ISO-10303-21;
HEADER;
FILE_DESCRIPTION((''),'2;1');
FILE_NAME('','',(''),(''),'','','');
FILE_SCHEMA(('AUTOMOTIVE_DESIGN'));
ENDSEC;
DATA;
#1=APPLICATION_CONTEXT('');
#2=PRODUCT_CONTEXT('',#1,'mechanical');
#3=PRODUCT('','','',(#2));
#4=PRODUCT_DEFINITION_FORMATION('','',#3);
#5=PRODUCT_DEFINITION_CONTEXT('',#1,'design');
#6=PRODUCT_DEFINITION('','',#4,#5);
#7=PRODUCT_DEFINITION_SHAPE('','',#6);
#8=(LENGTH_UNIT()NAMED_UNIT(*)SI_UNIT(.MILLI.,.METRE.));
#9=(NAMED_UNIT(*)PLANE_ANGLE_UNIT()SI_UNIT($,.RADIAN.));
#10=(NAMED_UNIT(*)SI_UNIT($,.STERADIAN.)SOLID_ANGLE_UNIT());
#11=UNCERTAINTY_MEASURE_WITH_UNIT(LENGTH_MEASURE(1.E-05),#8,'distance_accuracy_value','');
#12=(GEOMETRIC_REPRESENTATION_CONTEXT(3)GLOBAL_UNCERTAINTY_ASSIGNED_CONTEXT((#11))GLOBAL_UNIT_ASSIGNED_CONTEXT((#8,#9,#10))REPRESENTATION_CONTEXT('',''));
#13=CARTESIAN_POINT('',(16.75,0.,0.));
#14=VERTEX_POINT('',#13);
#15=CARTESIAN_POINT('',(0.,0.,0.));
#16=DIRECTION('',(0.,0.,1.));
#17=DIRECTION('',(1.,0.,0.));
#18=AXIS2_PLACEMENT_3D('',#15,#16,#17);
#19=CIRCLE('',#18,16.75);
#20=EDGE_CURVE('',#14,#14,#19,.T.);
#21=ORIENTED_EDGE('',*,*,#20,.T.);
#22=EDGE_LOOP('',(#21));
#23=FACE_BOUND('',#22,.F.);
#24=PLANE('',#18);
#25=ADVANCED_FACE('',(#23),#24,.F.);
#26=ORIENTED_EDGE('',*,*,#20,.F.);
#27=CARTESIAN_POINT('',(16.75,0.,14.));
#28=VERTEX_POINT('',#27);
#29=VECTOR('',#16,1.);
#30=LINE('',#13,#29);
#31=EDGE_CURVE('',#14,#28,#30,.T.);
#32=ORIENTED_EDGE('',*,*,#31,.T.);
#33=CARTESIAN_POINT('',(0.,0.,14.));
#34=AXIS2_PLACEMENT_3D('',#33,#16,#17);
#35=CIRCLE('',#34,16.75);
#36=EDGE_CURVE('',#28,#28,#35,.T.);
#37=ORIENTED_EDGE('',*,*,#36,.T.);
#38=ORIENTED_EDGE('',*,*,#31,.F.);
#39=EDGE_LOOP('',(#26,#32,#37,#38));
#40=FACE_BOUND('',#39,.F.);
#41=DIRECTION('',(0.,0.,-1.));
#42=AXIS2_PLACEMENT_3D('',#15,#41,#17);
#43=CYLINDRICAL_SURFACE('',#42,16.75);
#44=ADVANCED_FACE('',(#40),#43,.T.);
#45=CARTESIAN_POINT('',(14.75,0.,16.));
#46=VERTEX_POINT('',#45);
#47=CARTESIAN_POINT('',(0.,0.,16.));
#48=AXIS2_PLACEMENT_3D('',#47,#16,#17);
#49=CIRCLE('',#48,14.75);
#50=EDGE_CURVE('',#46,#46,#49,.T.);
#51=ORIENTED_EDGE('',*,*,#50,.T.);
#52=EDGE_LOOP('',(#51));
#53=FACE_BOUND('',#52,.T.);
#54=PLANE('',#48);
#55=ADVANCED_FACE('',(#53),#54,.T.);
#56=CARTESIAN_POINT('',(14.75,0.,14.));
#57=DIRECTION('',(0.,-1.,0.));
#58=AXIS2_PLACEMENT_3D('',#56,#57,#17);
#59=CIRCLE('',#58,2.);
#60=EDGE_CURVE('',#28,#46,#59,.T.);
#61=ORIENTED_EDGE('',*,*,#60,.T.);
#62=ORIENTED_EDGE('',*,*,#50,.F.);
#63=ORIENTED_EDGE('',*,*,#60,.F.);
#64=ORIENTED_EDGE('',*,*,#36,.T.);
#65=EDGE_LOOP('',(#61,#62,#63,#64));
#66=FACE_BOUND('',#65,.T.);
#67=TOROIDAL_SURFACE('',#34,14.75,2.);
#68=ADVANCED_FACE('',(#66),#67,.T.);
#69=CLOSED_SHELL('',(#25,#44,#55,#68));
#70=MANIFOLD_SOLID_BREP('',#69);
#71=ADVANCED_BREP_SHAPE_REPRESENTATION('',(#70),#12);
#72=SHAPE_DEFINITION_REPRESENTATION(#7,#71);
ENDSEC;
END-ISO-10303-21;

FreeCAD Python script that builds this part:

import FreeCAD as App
import Part
import Sketcher


def edges_at(feature, points):
    """Names of the edges that pass closest to the given points."""
    edges = feature.Shape.Edges
    near = lambda p: min(range(len(edges)), key=lambda i: edges[i].distToShape(Part.Vertex(*p))[0])
    return sorted({f"Edge{near(p) + 1}" for p in points})

doc = App.newDocument("Part")
body = doc.addObject("PartDesign::Body", "Body")

# Sketch on XY plane
sketch1 = body.newObject("Sketcher::SketchObject", "Sketch")
sketch1.AttachmentSupport = (doc.getObject("XY_Plane"), [""])
sketch1.MapMode = "FlatFace"
sketch1.addGeometry(Part.Circle(App.Vector(0, 0, 0), App.Vector(0, 0, 1), 17), False)
sketch1.addConstraint([
    Sketcher.Constraint("Coincident", 0, 3, -1, 1),
    Sketcher.Constraint("Diameter", 0, 33.5),
])
pad1 = body.newObject("PartDesign::Pad", "Pad")
pad1.Profile = sketch1
pad1.Length = 16
doc.recompute()

fillet = body.newObject("PartDesign::Fillet", "Fillet")
fillet.Base = (pad1, edges_at(pad1, [(-15.617, -6.057, 16)]))
fillet.Radius = 2

doc.recompute()
